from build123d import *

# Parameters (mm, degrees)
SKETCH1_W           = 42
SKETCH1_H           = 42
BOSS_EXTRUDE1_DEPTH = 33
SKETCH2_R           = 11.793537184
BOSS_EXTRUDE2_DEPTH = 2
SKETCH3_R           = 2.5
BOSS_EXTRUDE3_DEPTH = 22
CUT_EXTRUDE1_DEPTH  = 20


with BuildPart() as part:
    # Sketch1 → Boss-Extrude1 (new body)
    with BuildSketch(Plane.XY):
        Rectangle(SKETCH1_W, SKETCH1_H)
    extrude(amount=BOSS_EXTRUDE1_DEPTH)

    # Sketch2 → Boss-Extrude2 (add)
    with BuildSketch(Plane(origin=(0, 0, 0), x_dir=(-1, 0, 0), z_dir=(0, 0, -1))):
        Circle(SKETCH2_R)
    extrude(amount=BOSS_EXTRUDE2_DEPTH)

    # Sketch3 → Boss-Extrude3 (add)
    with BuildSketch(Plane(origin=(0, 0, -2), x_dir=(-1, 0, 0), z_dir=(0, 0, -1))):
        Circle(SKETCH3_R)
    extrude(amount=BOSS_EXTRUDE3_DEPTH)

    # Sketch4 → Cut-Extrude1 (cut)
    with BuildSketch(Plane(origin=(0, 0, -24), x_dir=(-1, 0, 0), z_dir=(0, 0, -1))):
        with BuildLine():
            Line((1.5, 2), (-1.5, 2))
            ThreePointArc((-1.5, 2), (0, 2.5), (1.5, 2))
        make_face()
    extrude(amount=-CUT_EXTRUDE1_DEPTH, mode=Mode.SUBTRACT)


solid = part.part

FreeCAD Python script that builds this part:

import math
import FreeCAD as App
import Part
import Sketcher
Q = App.Units.Quantity


def add_polygon(sketch, points):
    """Adds a closed chain of lines whose ends are joined by coincident constraints."""
    first, n = sketch.GeometryCount, len(points)
    for a, b in zip(points, points[1:] + points[:1]):
        sketch.addGeometry(Part.LineSegment(App.Vector(*a, 0), App.Vector(*b, 0)), False)
    for i in range(n):
        sketch.addConstraint(Sketcher.Constraint("Coincident", first + i, 2, first + (i + 1) % n, 1))

doc = App.newDocument("Part")
params = doc.addObject("Spreadsheet::Sheet", "Params")
for row, (alias, value) in enumerate([
    ("sketch1_width", "42 mm"),
    ("pad1_length", "33 mm"),
    ("pad2_length", "2 mm"),
    ("sketch3_diameter", "5 mm"),
    ("pad3_length", "22 mm"),
    ("sketch4_radius", "2.5 mm"),
    ("sketch4_width", "3 mm"),
    ("pocket1_length", "20 mm"),
], start=1):
    params.set(f"A{row}", alias)
    params.set(f"B{row}", "=" + value)
    params.setAlias(f"B{row}", alias)

body = doc.addObject("PartDesign::Body", "Body")

# Sketch on XY plane
sketch1 = body.newObject("Sketcher::SketchObject", "Sketch")
sketch1.AttachmentSupport = (doc.getObject("XY_Plane"), [""])
sketch1.MapMode = "FlatFace"
add_polygon(sketch1, [(-21, 21), (-21, -21), (21, -21), (21, 21)])  # lines 0-3
sketch1.addConstraint([
    Sketcher.Constraint("Vertical", 0),
    Sketcher.Constraint("Horizontal", 1),
    Sketcher.Constraint("Vertical", 2),
    Sketcher.Constraint("Horizontal", 3),
    Sketcher.Constraint("Symmetric", 0, 2, 2, 2, -1, 1),
    Sketcher.Constraint("Equal", 3, 0),
    Sketcher.Constraint("DistanceX", 1, 1, 1, 2, Q("42 mm")),
])
sketch1.setExpression("Constraints[10]", "Params.sketch1_width")
pad1 = body.newObject("PartDesign::Pad", "Pad")
pad1.Profile = sketch1
pad1.setExpression("Length", "Params.pad1_length")

# Sketch on XY plane
sketch2 = body.newObject("Sketcher::SketchObject", "Sketch001")
sketch2.AttachmentSupport = (doc.getObject("XY_Plane"), [""])
sketch2.MapMode = "FlatFace"
sketch2.addGeometry(Part.Circle(App.Vector(0, 0, 0), App.Vector(0, 0, 1), 11.793537), False)
sketch2.addConstraint([
    Sketcher.Constraint("Coincident", 0, 3, -1, 1),
    Sketcher.Constraint("Diameter", 0, Q("23.587074 mm")),
])
pad2 = body.newObject("PartDesign::Pad", "Pad001")
pad2.Profile = sketch2
pad2.setExpression("Length", "Params.pad2_length")
pad2.Reversed = True

# Sketch on XY plane
sketch3 = body.newObject("Sketcher::SketchObject", "Sketch002")
sketch3.AttachmentSupport = (doc.getObject("XY_Plane"), [""])
sketch3.MapMode = "FlatFace"
sketch3.AttachmentOffset = App.Placement(App.Vector(0, 0, -2), App.Rotation())
sketch3.addGeometry(Part.Circle(App.Vector(0, 0, 0), App.Vector(0, 0, 1), 2.5), False)
sketch3.addConstraint([
    Sketcher.Constraint("Coincident", 0, 3, -1, 1),
    Sketcher.Constraint("Diameter", 0, Q("5 mm")),
])
sketch3.setExpression("Constraints[1]", "Params.sketch3_diameter")
pad3 = body.newObject("PartDesign::Pad", "Pad002")
pad3.Profile = sketch3
pad3.setExpression("Length", "Params.pad3_length")
pad3.Reversed = True

# Sketch on XY plane
sketch4 = body.newObject("Sketcher::SketchObject", "Sketch003")
sketch4.AttachmentSupport = (doc.getObject("XY_Plane"), [""])
sketch4.MapMode = "FlatFace"
sketch4.AttachmentOffset = App.Placement(App.Vector(0, 0, -24), App.Rotation())
sketch4.addGeometry([
    Part.LineSegment(App.Vector(1.5, 2, 0), App.Vector(-1.5, 2, 0)),
    Part.ArcOfCircle(Part.Circle(App.Vector(0, 0, 0), App.Vector(0, 0, 1), 2.5), math.radians(53.130102), math.radians(126.869898)),
], False)
sketch4.addConstraint([
    Sketcher.Constraint("Coincident", 0, 1, 1, 1),
    Sketcher.Constraint("Coincident", 1, 2, 0, 2),
    Sketcher.Constraint("Horizontal", 0),
    Sketcher.Constraint("Coincident", 1, 3, -1, 1),
    Sketcher.Constraint("Radius", 1, Q("2.5 mm")),
    Sketcher.Constraint("DistanceX", 0, 2, 0, 1, Q("3 mm")),
])
sketch4.setExpression("Constraints[4]", "Params.sketch4_radius")
sketch4.setExpression("Constraints[5]", "Params.sketch4_width")
pocket1 = body.newObject("PartDesign::Pocket", "Pocket")
pocket1.Profile = sketch4
pocket1.setExpression("Length", "Params.pocket1_length")
pocket1.Reversed = True

doc.recompute()
